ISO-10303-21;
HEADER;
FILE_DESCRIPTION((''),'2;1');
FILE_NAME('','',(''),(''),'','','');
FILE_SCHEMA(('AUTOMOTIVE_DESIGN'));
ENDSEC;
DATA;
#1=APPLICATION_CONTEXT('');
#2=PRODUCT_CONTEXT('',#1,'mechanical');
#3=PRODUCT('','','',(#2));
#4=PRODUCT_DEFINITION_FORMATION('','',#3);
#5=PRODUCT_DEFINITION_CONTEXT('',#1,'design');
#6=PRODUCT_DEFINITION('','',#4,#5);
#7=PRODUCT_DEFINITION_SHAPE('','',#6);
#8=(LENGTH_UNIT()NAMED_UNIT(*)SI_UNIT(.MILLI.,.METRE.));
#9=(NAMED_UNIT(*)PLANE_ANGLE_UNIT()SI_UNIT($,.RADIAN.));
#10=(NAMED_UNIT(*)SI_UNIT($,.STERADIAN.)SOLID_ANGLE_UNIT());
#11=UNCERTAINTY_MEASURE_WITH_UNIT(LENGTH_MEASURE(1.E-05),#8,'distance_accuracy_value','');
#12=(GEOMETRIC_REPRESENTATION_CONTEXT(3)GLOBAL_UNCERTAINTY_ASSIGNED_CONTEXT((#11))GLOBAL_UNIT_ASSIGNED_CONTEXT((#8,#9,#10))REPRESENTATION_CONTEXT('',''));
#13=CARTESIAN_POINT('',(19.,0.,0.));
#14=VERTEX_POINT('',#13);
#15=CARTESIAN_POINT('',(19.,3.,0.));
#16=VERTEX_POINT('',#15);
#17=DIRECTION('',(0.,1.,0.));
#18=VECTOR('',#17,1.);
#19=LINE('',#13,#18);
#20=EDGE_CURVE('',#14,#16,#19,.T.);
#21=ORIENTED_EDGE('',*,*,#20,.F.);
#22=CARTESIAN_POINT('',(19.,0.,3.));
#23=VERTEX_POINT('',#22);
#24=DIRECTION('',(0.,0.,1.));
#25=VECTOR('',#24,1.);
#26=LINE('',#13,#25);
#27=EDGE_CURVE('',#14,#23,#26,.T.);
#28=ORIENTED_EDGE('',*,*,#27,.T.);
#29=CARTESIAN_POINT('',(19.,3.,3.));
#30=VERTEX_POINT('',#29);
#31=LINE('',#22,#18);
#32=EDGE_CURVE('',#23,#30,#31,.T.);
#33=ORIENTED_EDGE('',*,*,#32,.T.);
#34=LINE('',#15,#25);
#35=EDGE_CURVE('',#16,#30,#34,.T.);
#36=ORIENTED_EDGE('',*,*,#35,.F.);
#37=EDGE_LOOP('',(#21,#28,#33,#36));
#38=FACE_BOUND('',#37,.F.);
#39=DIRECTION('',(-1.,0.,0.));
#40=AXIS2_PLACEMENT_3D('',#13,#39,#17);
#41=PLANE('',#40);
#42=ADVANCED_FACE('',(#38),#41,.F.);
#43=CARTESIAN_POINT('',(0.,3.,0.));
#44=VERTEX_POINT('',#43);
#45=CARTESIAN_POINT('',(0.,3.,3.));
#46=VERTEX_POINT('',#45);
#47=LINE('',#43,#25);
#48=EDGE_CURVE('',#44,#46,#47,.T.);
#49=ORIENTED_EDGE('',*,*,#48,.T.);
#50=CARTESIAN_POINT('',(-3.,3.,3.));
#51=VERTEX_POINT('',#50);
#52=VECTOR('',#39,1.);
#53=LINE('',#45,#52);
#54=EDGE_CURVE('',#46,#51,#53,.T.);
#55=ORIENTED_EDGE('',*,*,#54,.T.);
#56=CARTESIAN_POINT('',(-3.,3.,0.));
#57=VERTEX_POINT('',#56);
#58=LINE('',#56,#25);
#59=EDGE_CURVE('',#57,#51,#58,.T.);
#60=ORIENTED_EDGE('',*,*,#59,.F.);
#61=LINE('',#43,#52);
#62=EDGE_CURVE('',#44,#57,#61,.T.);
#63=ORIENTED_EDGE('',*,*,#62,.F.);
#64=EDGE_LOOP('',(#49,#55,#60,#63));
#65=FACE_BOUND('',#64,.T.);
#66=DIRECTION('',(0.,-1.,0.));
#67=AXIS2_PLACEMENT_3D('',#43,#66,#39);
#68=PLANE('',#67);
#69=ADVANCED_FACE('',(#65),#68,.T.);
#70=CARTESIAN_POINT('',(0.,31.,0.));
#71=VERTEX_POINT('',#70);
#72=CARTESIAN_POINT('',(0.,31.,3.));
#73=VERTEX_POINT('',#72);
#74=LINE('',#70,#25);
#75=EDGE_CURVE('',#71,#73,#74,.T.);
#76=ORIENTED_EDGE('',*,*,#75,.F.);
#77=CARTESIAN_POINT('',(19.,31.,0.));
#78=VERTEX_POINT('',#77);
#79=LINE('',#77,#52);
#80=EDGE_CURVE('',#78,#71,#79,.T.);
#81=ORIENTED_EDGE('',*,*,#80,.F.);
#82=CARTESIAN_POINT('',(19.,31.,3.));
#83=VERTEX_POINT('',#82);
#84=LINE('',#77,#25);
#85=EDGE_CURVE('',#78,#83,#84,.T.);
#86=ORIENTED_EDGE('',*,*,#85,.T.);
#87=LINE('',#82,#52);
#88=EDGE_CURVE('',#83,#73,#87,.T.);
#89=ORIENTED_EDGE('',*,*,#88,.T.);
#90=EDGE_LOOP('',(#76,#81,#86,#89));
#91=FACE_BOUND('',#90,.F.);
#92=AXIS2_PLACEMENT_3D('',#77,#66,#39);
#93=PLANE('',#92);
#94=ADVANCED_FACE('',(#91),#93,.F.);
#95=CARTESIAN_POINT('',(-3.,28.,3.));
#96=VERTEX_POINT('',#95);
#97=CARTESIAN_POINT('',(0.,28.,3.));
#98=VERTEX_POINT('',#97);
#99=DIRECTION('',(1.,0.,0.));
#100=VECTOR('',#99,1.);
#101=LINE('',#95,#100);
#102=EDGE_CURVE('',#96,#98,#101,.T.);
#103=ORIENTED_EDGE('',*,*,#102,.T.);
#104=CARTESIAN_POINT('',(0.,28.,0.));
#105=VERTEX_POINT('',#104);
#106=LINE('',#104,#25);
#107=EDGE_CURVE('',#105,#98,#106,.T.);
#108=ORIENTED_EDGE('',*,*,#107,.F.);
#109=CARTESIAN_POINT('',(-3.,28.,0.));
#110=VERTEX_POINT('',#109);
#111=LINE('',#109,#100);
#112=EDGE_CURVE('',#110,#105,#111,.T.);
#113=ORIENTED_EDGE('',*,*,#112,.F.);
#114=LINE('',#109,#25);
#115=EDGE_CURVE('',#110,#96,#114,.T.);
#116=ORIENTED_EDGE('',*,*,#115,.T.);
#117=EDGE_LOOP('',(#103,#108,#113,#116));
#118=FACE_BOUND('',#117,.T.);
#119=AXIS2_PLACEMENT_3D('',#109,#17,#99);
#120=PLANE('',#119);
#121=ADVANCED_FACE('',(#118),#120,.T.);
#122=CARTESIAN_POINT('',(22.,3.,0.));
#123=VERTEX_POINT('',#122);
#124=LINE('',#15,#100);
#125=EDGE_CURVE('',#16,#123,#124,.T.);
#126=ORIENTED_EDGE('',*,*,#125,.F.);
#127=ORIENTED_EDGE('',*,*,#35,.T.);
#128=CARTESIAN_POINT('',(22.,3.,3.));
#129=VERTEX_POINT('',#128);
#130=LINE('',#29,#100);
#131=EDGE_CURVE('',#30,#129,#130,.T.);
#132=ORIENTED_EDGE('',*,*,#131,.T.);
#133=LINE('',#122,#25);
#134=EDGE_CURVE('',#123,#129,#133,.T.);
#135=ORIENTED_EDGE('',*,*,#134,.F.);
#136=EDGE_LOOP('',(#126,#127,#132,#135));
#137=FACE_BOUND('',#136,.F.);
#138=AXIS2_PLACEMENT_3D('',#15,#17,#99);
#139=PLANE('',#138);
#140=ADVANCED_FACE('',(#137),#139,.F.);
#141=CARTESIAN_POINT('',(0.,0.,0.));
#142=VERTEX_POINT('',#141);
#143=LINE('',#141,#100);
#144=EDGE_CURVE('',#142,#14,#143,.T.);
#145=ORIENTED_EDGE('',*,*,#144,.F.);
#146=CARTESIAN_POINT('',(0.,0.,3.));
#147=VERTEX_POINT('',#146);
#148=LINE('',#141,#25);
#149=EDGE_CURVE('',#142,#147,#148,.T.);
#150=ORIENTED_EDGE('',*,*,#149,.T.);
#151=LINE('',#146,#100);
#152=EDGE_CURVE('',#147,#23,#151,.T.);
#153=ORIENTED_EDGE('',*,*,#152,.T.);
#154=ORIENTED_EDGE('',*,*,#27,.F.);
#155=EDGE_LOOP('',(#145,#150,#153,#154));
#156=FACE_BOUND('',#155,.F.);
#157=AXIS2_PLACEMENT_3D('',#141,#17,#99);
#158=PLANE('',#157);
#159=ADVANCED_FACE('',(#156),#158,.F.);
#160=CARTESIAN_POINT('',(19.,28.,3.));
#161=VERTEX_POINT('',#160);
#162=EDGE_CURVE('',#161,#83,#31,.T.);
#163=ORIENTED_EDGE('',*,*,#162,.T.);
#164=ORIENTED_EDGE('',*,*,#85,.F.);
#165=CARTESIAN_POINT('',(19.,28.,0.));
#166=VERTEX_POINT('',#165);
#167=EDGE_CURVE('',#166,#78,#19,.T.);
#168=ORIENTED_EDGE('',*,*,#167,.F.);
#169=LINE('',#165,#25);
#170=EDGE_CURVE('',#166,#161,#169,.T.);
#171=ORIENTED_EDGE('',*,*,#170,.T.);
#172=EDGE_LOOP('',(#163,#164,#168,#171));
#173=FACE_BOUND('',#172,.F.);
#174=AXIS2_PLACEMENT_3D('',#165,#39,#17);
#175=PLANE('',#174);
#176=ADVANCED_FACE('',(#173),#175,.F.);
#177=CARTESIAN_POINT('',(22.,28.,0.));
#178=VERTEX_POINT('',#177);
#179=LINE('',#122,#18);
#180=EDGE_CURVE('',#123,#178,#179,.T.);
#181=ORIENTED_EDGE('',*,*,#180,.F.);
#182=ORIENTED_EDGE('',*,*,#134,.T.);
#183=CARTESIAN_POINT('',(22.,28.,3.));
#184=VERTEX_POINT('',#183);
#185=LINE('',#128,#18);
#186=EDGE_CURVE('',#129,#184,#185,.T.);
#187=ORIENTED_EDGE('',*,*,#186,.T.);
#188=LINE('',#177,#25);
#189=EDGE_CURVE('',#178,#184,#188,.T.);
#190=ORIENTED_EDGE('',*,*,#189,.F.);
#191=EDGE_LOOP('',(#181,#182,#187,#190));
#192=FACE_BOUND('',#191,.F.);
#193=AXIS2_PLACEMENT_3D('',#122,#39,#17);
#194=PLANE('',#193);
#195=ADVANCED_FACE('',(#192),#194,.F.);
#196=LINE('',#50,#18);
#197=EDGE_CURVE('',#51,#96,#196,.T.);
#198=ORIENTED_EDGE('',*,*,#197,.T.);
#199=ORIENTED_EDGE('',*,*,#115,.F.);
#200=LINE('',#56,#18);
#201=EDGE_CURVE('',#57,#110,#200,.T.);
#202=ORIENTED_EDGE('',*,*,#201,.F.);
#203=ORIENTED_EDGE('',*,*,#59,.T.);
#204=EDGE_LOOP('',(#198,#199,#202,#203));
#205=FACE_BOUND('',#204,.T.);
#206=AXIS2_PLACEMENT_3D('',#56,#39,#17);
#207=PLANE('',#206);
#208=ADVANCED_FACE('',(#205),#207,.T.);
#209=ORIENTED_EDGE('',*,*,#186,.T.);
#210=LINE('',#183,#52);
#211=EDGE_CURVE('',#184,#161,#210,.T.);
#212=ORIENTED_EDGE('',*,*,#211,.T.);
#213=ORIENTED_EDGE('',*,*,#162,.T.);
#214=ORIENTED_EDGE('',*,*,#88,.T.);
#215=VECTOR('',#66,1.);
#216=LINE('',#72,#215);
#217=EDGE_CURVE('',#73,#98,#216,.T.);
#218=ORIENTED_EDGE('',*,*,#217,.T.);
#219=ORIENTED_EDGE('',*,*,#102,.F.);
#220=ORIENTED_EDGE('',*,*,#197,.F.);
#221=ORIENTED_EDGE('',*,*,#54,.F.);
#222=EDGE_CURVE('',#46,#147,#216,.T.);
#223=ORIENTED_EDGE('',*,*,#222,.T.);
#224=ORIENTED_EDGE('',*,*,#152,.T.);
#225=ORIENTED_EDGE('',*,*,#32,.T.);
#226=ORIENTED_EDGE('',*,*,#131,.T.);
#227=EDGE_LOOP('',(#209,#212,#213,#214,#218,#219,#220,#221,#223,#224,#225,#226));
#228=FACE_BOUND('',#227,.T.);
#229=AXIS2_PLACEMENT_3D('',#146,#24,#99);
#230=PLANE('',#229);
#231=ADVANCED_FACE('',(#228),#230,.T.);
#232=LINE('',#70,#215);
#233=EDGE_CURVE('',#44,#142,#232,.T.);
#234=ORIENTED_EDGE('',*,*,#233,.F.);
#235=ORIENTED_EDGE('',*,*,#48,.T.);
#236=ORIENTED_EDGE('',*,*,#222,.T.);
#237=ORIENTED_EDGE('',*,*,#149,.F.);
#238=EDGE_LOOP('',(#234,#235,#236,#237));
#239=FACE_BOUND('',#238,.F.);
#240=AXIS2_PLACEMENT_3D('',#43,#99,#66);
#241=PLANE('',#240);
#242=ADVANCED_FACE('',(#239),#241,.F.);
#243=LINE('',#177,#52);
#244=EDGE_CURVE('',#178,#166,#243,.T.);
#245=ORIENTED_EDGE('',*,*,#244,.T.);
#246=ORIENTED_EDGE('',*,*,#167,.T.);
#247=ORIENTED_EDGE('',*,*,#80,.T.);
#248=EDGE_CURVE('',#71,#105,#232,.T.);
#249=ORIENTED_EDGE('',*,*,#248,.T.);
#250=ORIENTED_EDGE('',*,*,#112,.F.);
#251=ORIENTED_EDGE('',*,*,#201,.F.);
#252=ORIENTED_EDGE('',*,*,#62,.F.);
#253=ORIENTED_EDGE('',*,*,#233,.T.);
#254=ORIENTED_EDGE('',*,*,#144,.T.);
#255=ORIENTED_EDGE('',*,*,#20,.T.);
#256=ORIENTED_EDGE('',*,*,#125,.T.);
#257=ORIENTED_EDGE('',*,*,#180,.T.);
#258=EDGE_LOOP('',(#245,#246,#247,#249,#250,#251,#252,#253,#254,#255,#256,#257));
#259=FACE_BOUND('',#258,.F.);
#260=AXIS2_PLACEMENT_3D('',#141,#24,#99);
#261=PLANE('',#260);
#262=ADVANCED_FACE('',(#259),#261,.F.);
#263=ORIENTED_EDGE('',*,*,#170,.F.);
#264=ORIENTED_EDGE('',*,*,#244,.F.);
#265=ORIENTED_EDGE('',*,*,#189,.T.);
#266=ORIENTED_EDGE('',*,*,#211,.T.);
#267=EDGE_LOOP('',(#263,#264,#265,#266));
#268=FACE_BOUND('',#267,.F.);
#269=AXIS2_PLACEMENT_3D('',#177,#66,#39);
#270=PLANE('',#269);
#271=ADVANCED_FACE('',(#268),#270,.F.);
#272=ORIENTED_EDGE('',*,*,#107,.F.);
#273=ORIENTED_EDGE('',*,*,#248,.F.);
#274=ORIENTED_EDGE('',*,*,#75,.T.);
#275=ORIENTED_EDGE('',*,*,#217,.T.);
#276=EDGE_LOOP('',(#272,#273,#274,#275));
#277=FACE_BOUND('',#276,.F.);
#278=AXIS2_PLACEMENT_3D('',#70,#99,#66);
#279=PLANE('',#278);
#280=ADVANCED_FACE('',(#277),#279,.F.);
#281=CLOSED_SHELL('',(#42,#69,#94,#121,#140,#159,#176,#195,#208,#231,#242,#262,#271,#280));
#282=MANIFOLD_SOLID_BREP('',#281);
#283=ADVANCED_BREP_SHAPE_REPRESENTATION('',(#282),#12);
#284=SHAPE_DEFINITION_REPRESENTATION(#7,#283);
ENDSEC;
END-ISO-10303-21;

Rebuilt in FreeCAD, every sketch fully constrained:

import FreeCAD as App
import Part
import Sketcher
Q = App.Units.Quantity


def add_polygon(sketch, points):
    """Adds a closed chain of lines whose ends are joined by coincident constraints."""
    first, n = sketch.GeometryCount, len(points)
    for a, b in zip(points, points[1:] + points[:1]):
        sketch.addGeometry(Part.LineSegment(App.Vector(*a, 0), App.Vector(*b, 0)), False)
    for i in range(n):
        sketch.addConstraint(Sketcher.Constraint("Coincident", first + i, 2, first + (i + 1) % n, 1))

doc = App.newDocument("Part")
body = doc.addObject("PartDesign::Body", "Body")

# Sketch on XY plane
sketch1 = body.newObject("Sketcher::SketchObject", "Sketch")
sketch1.AttachmentSupport = (doc.getObject("XY_Plane"), [""])
sketch1.MapMode = "FlatFace"
add_polygon(sketch1, [(0, 3), (0, 0), (19, 0), (19, 3), (22, 3), (22, 28), (19, 28), (19, 31), (0, 31), (0, 28), (-3, 28), (-3, 3)])  # lines 0-11
sketch1.addConstraint(Sketcher.Constraint("Vertical", 0))
sketch1.addConstraint(Sketcher.Constraint("Horizontal", 1))
sketch1.addConstraint(Sketcher.Constraint("Vertical", 2))
sketch1.addConstraint(Sketcher.Constraint("Horizontal", 3))
sketch1.addConstraint(Sketcher.Constraint("Vertical", 4))
sketch1.addConstraint(Sketcher.Constraint("Horizontal", 5))
sketch1.addConstraint(Sketcher.Constraint("Vertical", 6))
sketch1.addConstraint(Sketcher.Constraint("Horizontal", 7))
sketch1.addConstraint(Sketcher.Constraint("Vertical", 8))
sketch1.addConstraint(Sketcher.Constraint("Horizontal", 9))
sketch1.addConstraint(Sketcher.Constraint("Vertical", 10))
sketch1.addConstraint(Sketcher.Constraint("Horizontal", 11))
sketch1.addConstraint(Sketcher.Constraint("Coincident", 0, 2, -1, 1))
sketch1.addConstraint(Sketcher.Constraint("PointOnObject", 7, 2, -2))
sketch1.addConstraint(Sketcher.Constraint("Horizontal", 5, 2, 8, 2))
sketch1.addConstraint(Sketcher.Constraint("Horizontal", 3, 2, 10, 2))
sketch1.addConstraint(Sketcher.Constraint("Vertical", 2, 2, 5, 2))
sketch1.addConstraint(Sketcher.Constraint("Equal", 5, 9))
sketch1.addConstraint(Sketcher.Constraint("Equal", 11, 0))
sketch1.addConstraint(Sketcher.Constraint("Equal", 2, 6))
sketch1.addConstraint(Sketcher.Constraint("DistanceX", 1, 1, 1, 2, Q("19 mm")))
sketch1.addConstraint(Sketcher.Constraint("DistanceX", 3, 1, 3, 2, Q("3 mm")))
sketch1.addConstraint(Sketcher.Constraint("DistanceY", 4, 1, 4, 2, Q("25 mm")))
pad1 = body.newObject("PartDesign::Pad", "Pad")
pad1.Profile = sketch1
pad1.Length = 3

doc.recompute()
